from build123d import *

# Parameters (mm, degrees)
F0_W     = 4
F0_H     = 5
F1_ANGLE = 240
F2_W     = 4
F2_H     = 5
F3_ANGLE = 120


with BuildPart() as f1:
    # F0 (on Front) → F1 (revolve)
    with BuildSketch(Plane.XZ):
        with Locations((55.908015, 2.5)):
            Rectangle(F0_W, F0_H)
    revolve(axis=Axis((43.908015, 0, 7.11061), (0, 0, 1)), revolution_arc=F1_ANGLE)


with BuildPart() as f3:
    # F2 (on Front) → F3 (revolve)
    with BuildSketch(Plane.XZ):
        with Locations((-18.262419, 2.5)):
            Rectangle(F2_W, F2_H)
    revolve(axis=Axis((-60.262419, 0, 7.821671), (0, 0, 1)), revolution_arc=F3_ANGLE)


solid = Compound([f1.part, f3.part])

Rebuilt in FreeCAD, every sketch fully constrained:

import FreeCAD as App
import Part
import Sketcher
Q = App.Units.Quantity


def add_polygon(sketch, points):
    """Adds a closed chain of lines whose ends are joined by coincident constraints."""
    first, n = sketch.GeometryCount, len(points)
    for a, b in zip(points, points[1:] + points[:1]):
        sketch.addGeometry(Part.LineSegment(App.Vector(*a, 0), App.Vector(*b, 0)), False)
    for i in range(n):
        sketch.addConstraint(Sketcher.Constraint("Coincident", first + i, 2, first + (i + 1) % n, 1))

doc = App.newDocument("Part")
body = doc.addObject("PartDesign::Body", "Body")

sketch1 = doc.addObject("Sketcher::SketchObject", "Sketch")
body.addObject(sketch1)
sketch1.AttachmentSupport = (doc.XZ_Plane, [""])
sketch1.MapMode = "FlatFace"
add_polygon(sketch1, [(53.9, 5), (53.9, 0), (57.9, 0), (57.9, 5)])
sketch1.addGeometry(Part.LineSegment(App.Vector(43.9, 0, 0), App.Vector(43.9, 5, 0)), True)
sketch1.addConstraint([
    Sketcher.Constraint("Vertical", 0),
    Sketcher.Constraint("Horizontal", 1),
    Sketcher.Constraint("Vertical", 2),
    Sketcher.Constraint("Horizontal", 3),
    Sketcher.Constraint("Vertical", 4),
    Sketcher.Constraint("PointOnObject", 0, 2, -1),
    Sketcher.Constraint("PointOnObject", 4, 1, -1),
    Sketcher.Constraint("Horizontal", 3, 2, 4, 2),
    Sketcher.Constraint("DistanceX", 1, 1, 1, 2, Q("4 mm")),
    Sketcher.Constraint("DistanceY", 0, 2, 0, 1, Q("5 mm")),
    Sketcher.Constraint("DistanceX", 4, 1, 0, 2, Q("10 mm")),
    Sketcher.Constraint("DistanceX", -1, 1, 0, 2, Q("53.908015 mm")),
])
revolution = doc.addObject("PartDesign::Revolution", "Revolution")
body.addObject(revolution)
revolution.Profile = sketch1
revolution.ReferenceAxis = (sketch1, ["Axis0"])
revolution.Angle = 240
body2 = doc.addObject("PartDesign::Body", "Body001")

sketch2 = doc.addObject("Sketcher::SketchObject", "Sketch001")
body2.addObject(sketch2)
sketch2.AttachmentSupport = (doc.getObject("XZ_Plane001"), [""])
sketch2.MapMode = "FlatFace"
add_polygon(sketch2, [(-20.3, 5), (-20.3, 0), (-16.3, 0), (-16.3, 5)])
sketch2.addGeometry(Part.LineSegment(App.Vector(-60.3, 0, 0), App.Vector(-60.3, 5, 0)), True)
sketch2.addConstraint([
    Sketcher.Constraint("Vertical", 0),
    Sketcher.Constraint("Horizontal", 1),
    Sketcher.Constraint("Vertical", 2),
    Sketcher.Constraint("Horizontal", 3),
    Sketcher.Constraint("Vertical", 4),
    Sketcher.Constraint("PointOnObject", 0, 2, -1),
    Sketcher.Constraint("PointOnObject", 4, 1, -1),
    Sketcher.Constraint("Horizontal", 3, 2, 4, 2),
    Sketcher.Constraint("DistanceX", 1, 1, 1, 2, Q("4 mm")),
    Sketcher.Constraint("DistanceY", 0, 2, 0, 1, Q("5 mm")),
    Sketcher.Constraint("DistanceX", 4, 1, 0, 2, Q("40 mm")),
    Sketcher.Constraint("DistanceX", 0, 2, -1, 1, Q("20.262419 mm")),
])
revolution2 = doc.addObject("PartDesign::Revolution", "Revolution001")
body2.addObject(revolution2)
revolution2.Profile = sketch2
revolution2.ReferenceAxis = (sketch2, ["Axis0"])
revolution2.Angle = 120

doc.recompute()
